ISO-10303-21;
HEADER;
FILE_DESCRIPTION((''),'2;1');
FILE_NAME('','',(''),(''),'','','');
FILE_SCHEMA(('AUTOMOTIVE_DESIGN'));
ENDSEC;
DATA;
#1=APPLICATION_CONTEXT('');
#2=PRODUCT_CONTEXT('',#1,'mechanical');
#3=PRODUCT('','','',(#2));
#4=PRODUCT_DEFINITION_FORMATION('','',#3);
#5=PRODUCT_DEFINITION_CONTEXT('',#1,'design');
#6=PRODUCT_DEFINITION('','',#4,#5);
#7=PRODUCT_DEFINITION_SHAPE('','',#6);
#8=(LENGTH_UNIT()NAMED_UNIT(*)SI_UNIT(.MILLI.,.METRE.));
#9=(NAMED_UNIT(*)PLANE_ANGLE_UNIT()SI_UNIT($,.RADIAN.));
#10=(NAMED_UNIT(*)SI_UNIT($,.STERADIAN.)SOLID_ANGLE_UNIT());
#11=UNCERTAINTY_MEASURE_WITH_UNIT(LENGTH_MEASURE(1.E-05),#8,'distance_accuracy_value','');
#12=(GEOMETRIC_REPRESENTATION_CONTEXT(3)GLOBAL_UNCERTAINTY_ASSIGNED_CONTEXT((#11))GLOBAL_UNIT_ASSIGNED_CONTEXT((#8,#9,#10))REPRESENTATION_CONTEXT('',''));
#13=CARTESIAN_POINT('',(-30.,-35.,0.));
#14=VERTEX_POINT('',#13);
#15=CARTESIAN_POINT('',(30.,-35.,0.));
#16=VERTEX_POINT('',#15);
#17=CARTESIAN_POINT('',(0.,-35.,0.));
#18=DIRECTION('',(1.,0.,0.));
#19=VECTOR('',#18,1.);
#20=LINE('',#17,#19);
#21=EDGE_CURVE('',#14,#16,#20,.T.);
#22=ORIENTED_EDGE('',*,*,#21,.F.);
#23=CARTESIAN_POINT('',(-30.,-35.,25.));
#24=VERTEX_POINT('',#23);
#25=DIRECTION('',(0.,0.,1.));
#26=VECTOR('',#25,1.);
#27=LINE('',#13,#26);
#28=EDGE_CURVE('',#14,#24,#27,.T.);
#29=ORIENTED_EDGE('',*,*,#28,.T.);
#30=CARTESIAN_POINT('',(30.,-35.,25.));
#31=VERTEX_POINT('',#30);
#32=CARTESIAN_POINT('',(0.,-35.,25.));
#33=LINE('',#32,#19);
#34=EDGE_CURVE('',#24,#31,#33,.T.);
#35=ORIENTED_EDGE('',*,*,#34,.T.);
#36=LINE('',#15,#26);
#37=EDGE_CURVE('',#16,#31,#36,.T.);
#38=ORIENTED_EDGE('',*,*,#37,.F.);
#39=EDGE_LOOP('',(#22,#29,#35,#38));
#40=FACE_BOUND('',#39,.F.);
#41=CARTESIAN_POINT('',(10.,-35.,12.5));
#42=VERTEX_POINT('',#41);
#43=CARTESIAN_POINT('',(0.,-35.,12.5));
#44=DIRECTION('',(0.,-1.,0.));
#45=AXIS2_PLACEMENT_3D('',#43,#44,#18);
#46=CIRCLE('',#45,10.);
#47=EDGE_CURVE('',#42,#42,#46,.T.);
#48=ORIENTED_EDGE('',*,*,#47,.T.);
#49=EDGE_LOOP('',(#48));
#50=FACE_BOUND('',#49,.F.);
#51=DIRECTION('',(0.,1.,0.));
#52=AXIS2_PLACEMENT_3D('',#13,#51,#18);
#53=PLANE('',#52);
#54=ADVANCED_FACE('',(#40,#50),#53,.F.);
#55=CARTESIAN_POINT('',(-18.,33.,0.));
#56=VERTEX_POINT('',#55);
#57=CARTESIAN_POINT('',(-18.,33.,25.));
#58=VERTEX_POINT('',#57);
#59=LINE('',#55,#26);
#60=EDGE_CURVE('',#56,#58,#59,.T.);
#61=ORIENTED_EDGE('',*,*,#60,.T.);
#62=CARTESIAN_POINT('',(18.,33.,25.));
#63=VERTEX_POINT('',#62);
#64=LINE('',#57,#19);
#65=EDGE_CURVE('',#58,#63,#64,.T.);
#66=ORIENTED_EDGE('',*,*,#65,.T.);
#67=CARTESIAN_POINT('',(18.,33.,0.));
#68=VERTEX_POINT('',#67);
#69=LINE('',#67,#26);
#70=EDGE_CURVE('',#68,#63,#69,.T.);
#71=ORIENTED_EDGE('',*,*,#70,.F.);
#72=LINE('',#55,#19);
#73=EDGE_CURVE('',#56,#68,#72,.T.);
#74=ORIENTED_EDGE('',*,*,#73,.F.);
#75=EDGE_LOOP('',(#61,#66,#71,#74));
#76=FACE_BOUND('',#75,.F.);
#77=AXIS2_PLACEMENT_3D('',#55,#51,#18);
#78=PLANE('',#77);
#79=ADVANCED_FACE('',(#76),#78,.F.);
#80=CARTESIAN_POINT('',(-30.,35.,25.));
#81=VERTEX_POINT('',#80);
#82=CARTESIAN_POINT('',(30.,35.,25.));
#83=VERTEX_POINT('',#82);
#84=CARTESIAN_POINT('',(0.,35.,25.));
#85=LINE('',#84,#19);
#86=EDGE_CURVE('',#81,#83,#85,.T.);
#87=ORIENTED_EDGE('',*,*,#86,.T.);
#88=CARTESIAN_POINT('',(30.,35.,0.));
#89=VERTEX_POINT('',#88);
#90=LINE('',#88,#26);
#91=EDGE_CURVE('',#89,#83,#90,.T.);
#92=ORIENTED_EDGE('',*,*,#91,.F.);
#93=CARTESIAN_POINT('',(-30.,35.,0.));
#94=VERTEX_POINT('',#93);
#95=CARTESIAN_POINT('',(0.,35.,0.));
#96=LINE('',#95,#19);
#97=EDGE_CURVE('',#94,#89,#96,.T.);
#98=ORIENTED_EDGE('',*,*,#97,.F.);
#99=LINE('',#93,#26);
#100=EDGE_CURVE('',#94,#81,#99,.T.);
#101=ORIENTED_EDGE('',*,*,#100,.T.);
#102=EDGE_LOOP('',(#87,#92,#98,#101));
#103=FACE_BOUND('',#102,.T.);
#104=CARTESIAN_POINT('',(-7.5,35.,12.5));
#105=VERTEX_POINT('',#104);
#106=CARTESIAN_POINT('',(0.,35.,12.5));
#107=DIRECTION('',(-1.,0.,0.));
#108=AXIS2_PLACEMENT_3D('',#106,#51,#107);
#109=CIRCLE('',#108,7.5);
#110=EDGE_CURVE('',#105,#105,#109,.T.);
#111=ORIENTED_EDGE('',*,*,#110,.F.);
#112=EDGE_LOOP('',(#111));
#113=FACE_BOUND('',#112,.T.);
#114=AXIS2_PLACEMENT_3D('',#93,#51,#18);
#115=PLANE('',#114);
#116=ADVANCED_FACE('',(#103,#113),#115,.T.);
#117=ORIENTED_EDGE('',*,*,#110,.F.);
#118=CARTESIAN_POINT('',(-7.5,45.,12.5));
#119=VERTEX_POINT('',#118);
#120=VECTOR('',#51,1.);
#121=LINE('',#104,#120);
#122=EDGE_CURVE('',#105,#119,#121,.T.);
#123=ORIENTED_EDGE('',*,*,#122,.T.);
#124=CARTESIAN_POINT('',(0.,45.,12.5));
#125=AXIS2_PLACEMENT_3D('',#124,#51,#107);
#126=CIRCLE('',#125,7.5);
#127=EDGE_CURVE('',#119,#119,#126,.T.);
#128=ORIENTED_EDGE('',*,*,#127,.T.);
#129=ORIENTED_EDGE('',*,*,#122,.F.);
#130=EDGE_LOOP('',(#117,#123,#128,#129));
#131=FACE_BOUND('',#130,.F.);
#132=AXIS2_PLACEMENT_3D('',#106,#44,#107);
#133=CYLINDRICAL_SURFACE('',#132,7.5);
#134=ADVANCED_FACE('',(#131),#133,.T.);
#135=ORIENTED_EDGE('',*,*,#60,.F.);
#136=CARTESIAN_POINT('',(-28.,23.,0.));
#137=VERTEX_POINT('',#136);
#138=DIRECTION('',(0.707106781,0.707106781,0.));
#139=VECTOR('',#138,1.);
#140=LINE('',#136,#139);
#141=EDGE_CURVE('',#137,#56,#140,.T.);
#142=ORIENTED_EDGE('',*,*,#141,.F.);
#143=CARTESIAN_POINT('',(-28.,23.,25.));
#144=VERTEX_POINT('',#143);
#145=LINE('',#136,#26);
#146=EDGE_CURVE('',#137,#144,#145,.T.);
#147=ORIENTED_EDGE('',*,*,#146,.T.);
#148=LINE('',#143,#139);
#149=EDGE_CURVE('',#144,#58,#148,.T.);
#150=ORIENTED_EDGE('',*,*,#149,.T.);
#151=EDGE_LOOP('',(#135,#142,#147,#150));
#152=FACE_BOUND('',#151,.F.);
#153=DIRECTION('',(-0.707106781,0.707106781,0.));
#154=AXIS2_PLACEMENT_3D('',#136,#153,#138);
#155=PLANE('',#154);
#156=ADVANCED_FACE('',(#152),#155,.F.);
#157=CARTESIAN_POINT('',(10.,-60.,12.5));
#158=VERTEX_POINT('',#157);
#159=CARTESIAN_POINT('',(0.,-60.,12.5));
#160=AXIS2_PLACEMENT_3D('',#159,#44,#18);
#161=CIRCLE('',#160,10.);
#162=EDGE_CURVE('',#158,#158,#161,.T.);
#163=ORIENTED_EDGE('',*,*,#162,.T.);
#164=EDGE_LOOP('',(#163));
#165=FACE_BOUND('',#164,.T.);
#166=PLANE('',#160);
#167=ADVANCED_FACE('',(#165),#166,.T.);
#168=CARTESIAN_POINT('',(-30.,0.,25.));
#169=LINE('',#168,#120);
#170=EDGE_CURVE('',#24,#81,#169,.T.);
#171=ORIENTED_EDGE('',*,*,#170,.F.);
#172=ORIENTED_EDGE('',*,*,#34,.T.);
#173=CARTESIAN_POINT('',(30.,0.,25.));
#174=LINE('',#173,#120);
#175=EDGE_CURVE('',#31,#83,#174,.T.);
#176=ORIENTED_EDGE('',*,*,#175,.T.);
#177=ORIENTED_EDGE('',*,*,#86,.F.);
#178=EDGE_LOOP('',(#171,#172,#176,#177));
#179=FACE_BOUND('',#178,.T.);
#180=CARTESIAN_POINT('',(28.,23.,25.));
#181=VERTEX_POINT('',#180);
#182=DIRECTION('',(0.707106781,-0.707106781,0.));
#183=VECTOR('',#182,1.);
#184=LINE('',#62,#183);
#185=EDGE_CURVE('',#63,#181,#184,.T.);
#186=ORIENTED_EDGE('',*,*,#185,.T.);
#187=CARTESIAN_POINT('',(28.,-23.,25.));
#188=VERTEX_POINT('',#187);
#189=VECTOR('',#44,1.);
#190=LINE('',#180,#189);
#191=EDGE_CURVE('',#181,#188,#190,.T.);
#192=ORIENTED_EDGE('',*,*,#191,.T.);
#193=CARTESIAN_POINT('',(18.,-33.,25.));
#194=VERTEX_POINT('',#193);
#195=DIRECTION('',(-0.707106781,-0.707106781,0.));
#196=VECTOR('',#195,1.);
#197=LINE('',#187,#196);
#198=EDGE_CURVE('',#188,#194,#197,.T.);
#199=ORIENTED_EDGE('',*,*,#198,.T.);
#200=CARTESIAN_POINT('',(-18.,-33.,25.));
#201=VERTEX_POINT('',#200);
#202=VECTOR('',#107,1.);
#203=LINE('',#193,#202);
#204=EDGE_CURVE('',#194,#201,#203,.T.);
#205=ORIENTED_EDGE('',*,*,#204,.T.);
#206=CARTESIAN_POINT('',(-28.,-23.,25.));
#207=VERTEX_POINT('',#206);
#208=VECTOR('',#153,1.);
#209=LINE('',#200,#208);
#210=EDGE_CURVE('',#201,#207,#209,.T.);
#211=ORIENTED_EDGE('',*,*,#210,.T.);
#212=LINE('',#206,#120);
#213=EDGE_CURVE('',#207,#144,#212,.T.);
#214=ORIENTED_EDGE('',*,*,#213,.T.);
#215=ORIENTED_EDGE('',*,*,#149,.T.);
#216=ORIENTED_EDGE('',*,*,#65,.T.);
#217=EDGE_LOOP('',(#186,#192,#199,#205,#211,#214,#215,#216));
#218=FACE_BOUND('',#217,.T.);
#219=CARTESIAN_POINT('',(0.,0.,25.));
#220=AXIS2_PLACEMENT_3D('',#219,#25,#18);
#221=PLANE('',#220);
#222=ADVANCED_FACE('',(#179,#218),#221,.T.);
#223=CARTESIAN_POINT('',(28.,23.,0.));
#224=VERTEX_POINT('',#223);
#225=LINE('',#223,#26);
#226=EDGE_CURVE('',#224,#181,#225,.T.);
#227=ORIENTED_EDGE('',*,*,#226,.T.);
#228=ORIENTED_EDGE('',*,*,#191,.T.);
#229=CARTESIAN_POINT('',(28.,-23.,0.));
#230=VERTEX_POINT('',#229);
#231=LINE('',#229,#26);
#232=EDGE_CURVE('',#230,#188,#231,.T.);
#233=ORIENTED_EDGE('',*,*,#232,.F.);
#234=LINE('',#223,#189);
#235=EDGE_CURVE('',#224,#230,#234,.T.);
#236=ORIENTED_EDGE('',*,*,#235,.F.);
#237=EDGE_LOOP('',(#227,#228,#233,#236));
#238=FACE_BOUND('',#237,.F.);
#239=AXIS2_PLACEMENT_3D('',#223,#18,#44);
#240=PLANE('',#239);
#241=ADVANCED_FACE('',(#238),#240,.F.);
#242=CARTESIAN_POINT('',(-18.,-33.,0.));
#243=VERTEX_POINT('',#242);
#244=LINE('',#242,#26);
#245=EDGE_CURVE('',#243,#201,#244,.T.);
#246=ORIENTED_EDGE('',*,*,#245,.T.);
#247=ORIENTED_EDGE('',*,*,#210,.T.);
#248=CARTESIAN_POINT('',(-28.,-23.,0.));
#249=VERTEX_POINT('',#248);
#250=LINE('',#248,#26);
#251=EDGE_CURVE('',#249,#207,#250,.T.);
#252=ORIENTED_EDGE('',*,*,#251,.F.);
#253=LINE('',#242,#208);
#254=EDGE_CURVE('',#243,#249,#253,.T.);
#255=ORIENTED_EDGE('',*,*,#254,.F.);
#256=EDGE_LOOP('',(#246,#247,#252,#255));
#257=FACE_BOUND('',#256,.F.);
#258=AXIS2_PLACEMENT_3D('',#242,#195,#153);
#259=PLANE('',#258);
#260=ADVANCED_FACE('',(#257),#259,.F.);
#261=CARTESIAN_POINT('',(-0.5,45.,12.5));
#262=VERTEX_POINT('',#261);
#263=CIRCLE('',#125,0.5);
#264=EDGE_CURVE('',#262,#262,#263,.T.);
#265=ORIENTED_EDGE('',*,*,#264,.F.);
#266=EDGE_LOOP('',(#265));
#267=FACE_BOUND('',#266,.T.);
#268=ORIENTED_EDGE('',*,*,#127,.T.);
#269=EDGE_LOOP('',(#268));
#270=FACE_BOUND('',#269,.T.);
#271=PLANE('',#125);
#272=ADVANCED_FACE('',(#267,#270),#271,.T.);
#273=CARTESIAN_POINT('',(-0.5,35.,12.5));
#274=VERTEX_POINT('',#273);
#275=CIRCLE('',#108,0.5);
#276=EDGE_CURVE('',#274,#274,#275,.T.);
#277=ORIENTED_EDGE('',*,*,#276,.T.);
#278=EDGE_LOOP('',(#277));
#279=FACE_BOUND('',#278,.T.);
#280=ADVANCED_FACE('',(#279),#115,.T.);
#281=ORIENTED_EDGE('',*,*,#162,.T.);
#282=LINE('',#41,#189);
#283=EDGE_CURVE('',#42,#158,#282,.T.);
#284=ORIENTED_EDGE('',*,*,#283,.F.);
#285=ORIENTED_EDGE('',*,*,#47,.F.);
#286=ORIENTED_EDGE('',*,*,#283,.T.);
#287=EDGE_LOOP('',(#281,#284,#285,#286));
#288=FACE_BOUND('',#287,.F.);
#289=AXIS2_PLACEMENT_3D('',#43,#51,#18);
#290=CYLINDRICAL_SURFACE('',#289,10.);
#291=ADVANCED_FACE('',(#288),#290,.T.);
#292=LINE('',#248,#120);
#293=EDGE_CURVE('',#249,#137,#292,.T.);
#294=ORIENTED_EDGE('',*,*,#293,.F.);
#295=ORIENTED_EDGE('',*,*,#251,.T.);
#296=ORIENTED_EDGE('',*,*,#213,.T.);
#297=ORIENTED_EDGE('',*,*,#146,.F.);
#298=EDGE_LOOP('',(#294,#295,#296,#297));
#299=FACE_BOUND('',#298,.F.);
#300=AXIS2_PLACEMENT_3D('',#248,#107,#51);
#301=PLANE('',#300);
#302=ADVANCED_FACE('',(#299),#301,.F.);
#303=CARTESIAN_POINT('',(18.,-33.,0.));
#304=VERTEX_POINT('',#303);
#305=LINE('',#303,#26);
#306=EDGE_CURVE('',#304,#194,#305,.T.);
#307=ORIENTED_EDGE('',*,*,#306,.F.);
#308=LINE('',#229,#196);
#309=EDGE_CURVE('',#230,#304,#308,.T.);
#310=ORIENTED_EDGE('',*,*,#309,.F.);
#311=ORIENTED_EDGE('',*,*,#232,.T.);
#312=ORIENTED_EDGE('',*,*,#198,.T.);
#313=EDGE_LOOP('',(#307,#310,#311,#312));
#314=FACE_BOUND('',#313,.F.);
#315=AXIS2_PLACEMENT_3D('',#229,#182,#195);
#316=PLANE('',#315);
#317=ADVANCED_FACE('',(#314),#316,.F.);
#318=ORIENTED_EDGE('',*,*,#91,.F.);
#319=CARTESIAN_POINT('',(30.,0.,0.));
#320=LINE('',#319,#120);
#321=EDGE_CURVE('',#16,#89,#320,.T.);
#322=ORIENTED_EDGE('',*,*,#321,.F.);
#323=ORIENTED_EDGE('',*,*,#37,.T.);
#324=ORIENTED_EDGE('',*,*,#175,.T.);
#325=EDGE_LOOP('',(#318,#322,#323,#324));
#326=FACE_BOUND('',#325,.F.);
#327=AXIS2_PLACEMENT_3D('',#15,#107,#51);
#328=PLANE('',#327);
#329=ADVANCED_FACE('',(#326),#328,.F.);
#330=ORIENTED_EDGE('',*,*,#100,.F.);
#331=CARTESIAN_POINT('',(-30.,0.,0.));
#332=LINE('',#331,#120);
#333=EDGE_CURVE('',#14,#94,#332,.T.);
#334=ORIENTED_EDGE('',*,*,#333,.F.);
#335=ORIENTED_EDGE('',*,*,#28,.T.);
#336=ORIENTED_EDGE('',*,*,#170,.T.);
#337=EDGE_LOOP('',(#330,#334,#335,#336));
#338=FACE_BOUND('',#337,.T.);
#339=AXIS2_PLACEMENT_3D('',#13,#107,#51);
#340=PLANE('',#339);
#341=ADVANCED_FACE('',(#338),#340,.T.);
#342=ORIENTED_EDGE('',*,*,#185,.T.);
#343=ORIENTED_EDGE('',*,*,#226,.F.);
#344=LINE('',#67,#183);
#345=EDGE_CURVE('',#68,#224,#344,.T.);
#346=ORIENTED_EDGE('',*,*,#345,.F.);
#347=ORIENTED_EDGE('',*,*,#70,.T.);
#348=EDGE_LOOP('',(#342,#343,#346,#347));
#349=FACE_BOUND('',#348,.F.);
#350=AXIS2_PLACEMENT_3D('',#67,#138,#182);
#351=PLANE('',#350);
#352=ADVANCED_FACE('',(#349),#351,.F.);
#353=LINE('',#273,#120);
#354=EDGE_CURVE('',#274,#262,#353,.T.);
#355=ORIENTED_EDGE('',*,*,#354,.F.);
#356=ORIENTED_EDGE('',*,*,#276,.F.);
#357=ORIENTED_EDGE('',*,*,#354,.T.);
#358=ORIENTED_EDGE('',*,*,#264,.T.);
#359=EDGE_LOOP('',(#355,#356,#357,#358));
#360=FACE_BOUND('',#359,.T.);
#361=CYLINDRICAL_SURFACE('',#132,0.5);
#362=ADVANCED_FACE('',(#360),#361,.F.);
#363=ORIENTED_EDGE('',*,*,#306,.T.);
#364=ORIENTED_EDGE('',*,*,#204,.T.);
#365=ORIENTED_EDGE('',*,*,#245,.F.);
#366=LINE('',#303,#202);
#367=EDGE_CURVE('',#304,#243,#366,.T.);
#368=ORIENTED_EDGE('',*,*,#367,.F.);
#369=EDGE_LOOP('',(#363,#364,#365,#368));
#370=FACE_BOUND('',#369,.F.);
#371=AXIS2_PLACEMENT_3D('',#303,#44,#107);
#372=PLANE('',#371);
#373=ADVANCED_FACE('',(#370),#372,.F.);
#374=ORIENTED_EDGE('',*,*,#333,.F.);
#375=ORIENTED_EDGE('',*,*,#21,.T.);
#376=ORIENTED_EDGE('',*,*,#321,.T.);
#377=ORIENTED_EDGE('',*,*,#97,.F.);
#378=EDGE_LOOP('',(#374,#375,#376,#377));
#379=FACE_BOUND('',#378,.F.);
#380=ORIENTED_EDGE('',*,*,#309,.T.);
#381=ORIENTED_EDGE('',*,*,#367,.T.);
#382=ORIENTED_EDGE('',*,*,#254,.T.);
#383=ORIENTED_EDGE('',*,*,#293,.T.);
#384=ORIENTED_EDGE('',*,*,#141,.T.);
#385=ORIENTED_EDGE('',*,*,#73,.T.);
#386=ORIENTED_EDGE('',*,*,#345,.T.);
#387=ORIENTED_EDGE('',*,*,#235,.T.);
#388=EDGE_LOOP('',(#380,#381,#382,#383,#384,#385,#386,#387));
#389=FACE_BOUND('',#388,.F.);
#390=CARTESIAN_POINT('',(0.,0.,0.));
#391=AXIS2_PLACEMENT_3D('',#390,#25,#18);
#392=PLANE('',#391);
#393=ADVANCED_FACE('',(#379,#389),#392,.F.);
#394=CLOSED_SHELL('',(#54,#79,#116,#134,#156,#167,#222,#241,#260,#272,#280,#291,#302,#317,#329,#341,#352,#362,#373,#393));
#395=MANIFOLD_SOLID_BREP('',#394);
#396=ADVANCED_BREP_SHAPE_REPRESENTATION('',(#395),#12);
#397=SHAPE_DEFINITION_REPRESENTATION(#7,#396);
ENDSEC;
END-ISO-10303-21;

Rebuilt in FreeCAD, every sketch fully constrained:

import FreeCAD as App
import Part
import Sketcher
Q = App.Units.Quantity

doc = App.newDocument("Part")
body = doc.addObject("PartDesign::Body", "Body")

# Sketch on XY plane
sketch1 = doc.addObject("Sketcher::SketchObject", "Sketch")
body.addObject(sketch1)
sketch1.AttachmentSupport = (doc.XY_Plane, [""])
sketch1.MapMode = "FlatFace"
sketch1.addGeometry(Part.LineSegment(App.Vector(-30, 35, 0), App.Vector(-30, -35, 0)), False)
sketch1.addGeometry(Part.LineSegment(App.Vector(-30, -35, 0), App.Vector(30, -35, 0)), False)
sketch1.addGeometry(Part.LineSegment(App.Vector(30, -35, 0), App.Vector(30, 35, 0)), False)
sketch1.addGeometry(Part.LineSegment(App.Vector(30, 35, 0), App.Vector(-30, 35, 0)), False)
sketch1.addGeometry(Part.LineSegment(App.Vector(-18, 33, 0), App.Vector(18, 33, 0)), False)
sketch1.addGeometry(Part.LineSegment(App.Vector(18, 33, 0), App.Vector(28, 23, 0)), False)
sketch1.addGeometry(Part.LineSegment(App.Vector(28, 23, 0), App.Vector(28, -23, 0)), False)
sketch1.addGeometry(Part.LineSegment(App.Vector(28, -23, 0), App.Vector(18, -33, 0)), False)
sketch1.addGeometry(Part.LineSegment(App.Vector(18, -33, 0), App.Vector(-18, -33, 0)), False)
sketch1.addGeometry(Part.LineSegment(App.Vector(-18, -33, 0), App.Vector(-28, -23, 0)), False)
sketch1.addGeometry(Part.LineSegment(App.Vector(-28, -23, 0), App.Vector(-28, 23, 0)), False)
sketch1.addGeometry(Part.LineSegment(App.Vector(-28, 23, 0), App.Vector(-18, 33, 0)), False)
sketch1.addConstraint(Sketcher.Constraint("Coincident", 0, 2, 1, 1))
sketch1.addConstraint(Sketcher.Constraint("Coincident", 1, 2, 2, 1))
sketch1.addConstraint(Sketcher.Constraint("Coincident", 2, 2, 3, 1))
sketch1.addConstraint(Sketcher.Constraint("Coincident", 3, 2, 0, 1))
sketch1.addConstraint(Sketcher.Constraint("Coincident", 4, 2, 5, 1))
sketch1.addConstraint(Sketcher.Constraint("Coincident", 5, 2, 6, 1))
sketch1.addConstraint(Sketcher.Constraint("Coincident", 6, 2, 7, 1))
sketch1.addConstraint(Sketcher.Constraint("Coincident", 7, 2, 8, 1))
sketch1.addConstraint(Sketcher.Constraint("Coincident", 8, 2, 9, 1))
sketch1.addConstraint(Sketcher.Constraint("Coincident", 9, 2, 10, 1))
sketch1.addConstraint(Sketcher.Constraint("Coincident", 10, 2, 11, 1))
sketch1.addConstraint(Sketcher.Constraint("Coincident", 11, 2, 4, 1))
sketch1.addConstraint(Sketcher.Constraint("Vertical", 0))
sketch1.addConstraint(Sketcher.Constraint("Horizontal", 1))
sketch1.addConstraint(Sketcher.Constraint("Vertical", 2))
sketch1.addConstraint(Sketcher.Constraint("Horizontal", 3))
sketch1.addConstraint(Sketcher.Constraint("Horizontal", 4))
sketch1.addConstraint(Sketcher.Constraint("Vertical", 6))
sketch1.addConstraint(Sketcher.Constraint("Horizontal", 8))
sketch1.addConstraint(Sketcher.Constraint("Vertical", 10))
sketch1.addConstraint(Sketcher.Constraint("Symmetric", 0, 2, 2, 2, -1, 1))
sketch1.addConstraint(Sketcher.Constraint("Symmetric", 4, 2, 8, 2, -1, 1))
sketch1.addConstraint(Sketcher.Constraint("Symmetric", 5, 2, 9, 2, -1, 1))
sketch1.addConstraint(Sketcher.Constraint("Perpendicular", 5, 7))
sketch1.addConstraint(Sketcher.Constraint("Perpendicular", 9, 11))
sketch1.addConstraint(Sketcher.Constraint("Horizontal", 6, 2, 9, 2))
sketch1.addConstraint(Sketcher.Constraint("Horizontal", 5, 2, 10, 2))
sketch1.addConstraint(Sketcher.Constraint("Vertical", 4, 2, 7, 2))
sketch1.addConstraint(Sketcher.Constraint("DistanceX", 1, 1, 1, 2, Q("60 mm")))
sketch1.addConstraint(Sketcher.Constraint("DistanceX", 4, 1, 4, 2, Q("36 mm")))
sketch1.addConstraint(Sketcher.Constraint("DistanceY", 0, 2, 0, 1, Q("70 mm")))
sketch1.addConstraint(Sketcher.Constraint("DistanceY", 6, 2, 6, 1, Q("46 mm")))
sketch1.addConstraint(Sketcher.Constraint("DistanceY", -1, 1, 4, 2, Q("33 mm")))
pad1 = doc.addObject("PartDesign::Pad", "Pad")
body.addObject(pad1)
pad1.Profile = sketch1
pad1.Length = 25

# Sketch on XZ plane
sketch2 = doc.addObject("Sketcher::SketchObject", "Sketch001")
body.addObject(sketch2)
sketch2.AttachmentSupport = (doc.XZ_Plane, [""])
sketch2.MapMode = "FlatFace"
sketch2.AttachmentOffset = App.Placement(App.Vector(0, 0, 35), App.Rotation())
sketch2.addGeometry(Part.Circle(App.Vector(0, 12, 0), App.Vector(0, 0, 1), 10), False)
sketch2.addConstraint(Sketcher.Constraint("PointOnObject", 0, 3, -2))
sketch2.addConstraint(Sketcher.Constraint("Diameter", 0, Q("20 mm")))
sketch2.addConstraint(Sketcher.Constraint("DistanceY", -1, 1, 0, 3, Q("12.5 mm")))
pad2 = doc.addObject("PartDesign::Pad", "Pad001")
body.addObject(pad2)
pad2.Profile = sketch2
pad2.Length = 25

# Sketch on XZ plane
sketch3 = doc.addObject("Sketcher::SketchObject", "Sketch002")
body.addObject(sketch3)
sketch3.AttachmentSupport = (doc.XZ_Plane, [""])
sketch3.MapMode = "FlatFace"
sketch3.AttachmentOffset = App.Placement(App.Vector(0, 0, -35), App.Rotation())
sketch3.addGeometry(Part.Circle(App.Vector(0, 12.5, 0), App.Vector(0, 0, 1), 7.5), False)
sketch3.addGeometry(Part.Circle(App.Vector(0, 12.5, 0), App.Vector(0, 0, 1), 0.5), False)
sketch3.addConstraint(Sketcher.Constraint("Coincident", 1, 3, 0, 3))
sketch3.addConstraint(Sketcher.Constraint("PointOnObject", 0, 3, -2))
sketch3.addConstraint(Sketcher.Constraint("Diameter", 0, Q("15 mm")))
sketch3.addConstraint(Sketcher.Constraint("Diameter", 1, Q("1 mm")))
sketch3.addConstraint(Sketcher.Constraint("DistanceY", -1, 1, 0, 3, Q("12.5 mm")))
pad3 = doc.addObject("PartDesign::Pad", "Pad002")
body.addObject(pad3)
pad3.Profile = sketch3
pad3.Length = 10
pad3.Reversed = True

doc.recompute()
